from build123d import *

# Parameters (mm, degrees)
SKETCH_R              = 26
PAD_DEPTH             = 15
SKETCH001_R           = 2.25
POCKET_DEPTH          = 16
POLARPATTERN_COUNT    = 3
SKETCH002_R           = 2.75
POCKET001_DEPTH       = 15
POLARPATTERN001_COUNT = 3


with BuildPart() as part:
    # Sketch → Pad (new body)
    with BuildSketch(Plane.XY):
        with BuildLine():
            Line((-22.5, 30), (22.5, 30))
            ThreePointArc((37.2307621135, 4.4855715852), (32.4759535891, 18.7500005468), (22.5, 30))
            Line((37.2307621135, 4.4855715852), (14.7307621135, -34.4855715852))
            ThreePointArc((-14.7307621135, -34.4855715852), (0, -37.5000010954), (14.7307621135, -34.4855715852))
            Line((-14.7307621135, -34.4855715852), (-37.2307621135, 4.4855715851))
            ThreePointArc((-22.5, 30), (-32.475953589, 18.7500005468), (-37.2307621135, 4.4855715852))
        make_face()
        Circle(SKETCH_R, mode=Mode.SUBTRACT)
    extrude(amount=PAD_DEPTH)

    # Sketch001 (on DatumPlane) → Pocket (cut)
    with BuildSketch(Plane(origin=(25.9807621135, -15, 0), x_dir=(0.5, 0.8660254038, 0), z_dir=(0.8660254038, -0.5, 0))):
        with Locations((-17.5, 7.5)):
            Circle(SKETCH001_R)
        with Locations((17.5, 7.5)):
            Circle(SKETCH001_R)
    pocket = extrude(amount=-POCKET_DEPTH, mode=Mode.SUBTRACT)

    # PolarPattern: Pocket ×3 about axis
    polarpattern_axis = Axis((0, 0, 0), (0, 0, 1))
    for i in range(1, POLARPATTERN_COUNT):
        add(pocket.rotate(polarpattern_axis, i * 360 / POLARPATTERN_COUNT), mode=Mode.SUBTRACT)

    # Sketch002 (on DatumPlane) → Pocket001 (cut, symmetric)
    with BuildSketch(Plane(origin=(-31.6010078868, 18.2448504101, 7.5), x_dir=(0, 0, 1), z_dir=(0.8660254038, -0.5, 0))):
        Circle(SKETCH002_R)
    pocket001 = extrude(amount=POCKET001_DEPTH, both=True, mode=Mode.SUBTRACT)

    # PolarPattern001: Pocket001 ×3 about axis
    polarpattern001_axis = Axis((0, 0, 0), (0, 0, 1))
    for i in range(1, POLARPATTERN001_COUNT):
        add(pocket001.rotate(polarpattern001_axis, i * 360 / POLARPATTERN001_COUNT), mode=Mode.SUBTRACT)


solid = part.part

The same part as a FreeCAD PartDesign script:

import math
import FreeCAD as App
import Part
import Sketcher
Q = App.Units.Quantity

doc = App.newDocument("Part")
params = doc.addObject("Spreadsheet::Sheet", "Params")
for row, (alias, value) in enumerate([
    ("sketch1_diameter", "52 mm"),
    ("sketch1_width", "45 mm"),
    ("sketch1_length", "45 mm"),
    ("pad1_length", "15 mm"),
    ("sketch2_diameter", "4.5 mm"),
    ("pocket1_length", "16 mm"),
    ("sketch3_diameter", "5.5 mm"),
    ("pocket2_length", "30 mm"),
], start=1):
    params.set(f"A{row}", alias)
    params.set(f"B{row}", "=" + value)
    params.setAlias(f"B{row}", alias)

body = doc.addObject("PartDesign::Body", "Body")

sketch1 = body.newObject("Sketcher::SketchObject", "Sketch")
sketch1.AttachmentSupport = (doc.getObject("XY_Plane"), [""])
sketch1.MapMode = "FlatFace"
sketch1.addGeometry(Part.LineSegment(App.Vector(22.5, 30, 0), App.Vector(-22.5, 30, 0)), False)
sketch1.addGeometry(Part.ArcOfCircle(Part.Circle(App.Vector(-0.000012, 0.000007, 0), App.Vector(0, 0, 1), 37.499987), math.radians(126.869889), math.radians(173.130111)), False)
sketch1.addGeometry(Part.LineSegment(App.Vector(-37.230762, 4.485572, 0), App.Vector(-14.730762, -34.485572, 0)), False)
sketch1.addGeometry(Part.ArcOfCircle(Part.Circle(App.Vector(0, -0.000014, 0), App.Vector(0, 0, 1), 37.499987), math.radians(-113.130111), math.radians(-66.869889)), False)
sketch1.addGeometry(Part.LineSegment(App.Vector(14.730762, -34.485572, 0), App.Vector(37.230762, 4.485572, 0)), False)
sketch1.addGeometry(Part.ArcOfCircle(Part.Circle(App.Vector(0.000012, 0.000007, 0), App.Vector(0, 0, 1), 37.499987), math.radians(6.869889), math.radians(53.130111)), False)
sketch1.addGeometry(Part.Circle(App.Vector(0, 0, 0), App.Vector(0, 0, 1), 26), False)
sketch1.addConstraint(Sketcher.Constraint("Coincident", 0, 2, 1, 1))
sketch1.addConstraint(Sketcher.Constraint("Coincident", 1, 2, 2, 1))
sketch1.addConstraint(Sketcher.Constraint("Coincident", 2, 2, 3, 1))
sketch1.addConstraint(Sketcher.Constraint("Coincident", 3, 2, 4, 1))
sketch1.addConstraint(Sketcher.Constraint("Coincident", 4, 2, 5, 1))
sketch1.addConstraint(Sketcher.Constraint("Coincident", 5, 2, 0, 1))
sketch1.addConstraint(Sketcher.Constraint("Horizontal", 0))
sketch1.addConstraint(Sketcher.Constraint("Coincident", 6, 3, -1, 1))
sketch1.addConstraint(Sketcher.Constraint("Equal", 1, 3))
sketch1.addConstraint(Sketcher.Constraint("Equal", 3, 5))
sketch1.addConstraint(Sketcher.Constraint("Symmetric", 1, 3, 5, 3, -2))
sketch1.addConstraint(Sketcher.Constraint("Symmetric", 2, 2, 3, 2, -2))
sketch1.addConstraint(Sketcher.Constraint("Horizontal", 1, 2, 4, 2))
sketch1.addConstraint(Sketcher.Constraint("Diameter", 6, 52.0))
sketch1.addConstraint(Sketcher.Constraint("DistanceX", 0, 2, 0, 1, 45.0))
sketch1.addConstraint(Sketcher.Constraint("Angle", 2, Q("-60 deg")))
sketch1.addConstraint(Sketcher.Constraint("Distance", 2, 45.0))
sketch1.addConstraint(Sketcher.Constraint("DistanceY", -1, 1, 0, 2, 30.0))
sketch1.addConstraint(Sketcher.Constraint("Radius", 1, 37.499987))
sketch1.addConstraint(Sketcher.Constraint("DistanceY", -1, 1, 1, 2, 4.485572))
sketch1.addConstraint(Sketcher.Constraint("DistanceX", 0, 2, 1, 3, 22.499988))
sketch1.setExpression("Constraints[13]", "Params.sketch1_diameter")
sketch1.setExpression("Constraints[14]", "Params.sketch1_width")
sketch1.setExpression("Constraints[16]", "Params.sketch1_length")
pad1 = body.newObject("PartDesign::Pad", "Pad")
pad1.Profile = sketch1
pad1.setExpression("Length", "Params.pad1_length")

sketch2 = body.newObject("Sketcher::SketchObject", "Sketch001")
sketch2.Placement = App.Placement(App.Vector(25.980762, -15, 0), App.Rotation(App.Vector(0.5, 0.866025404, 0), App.Vector(0, 0, 1), App.Vector(0.866025404, -0.5, 0), "ZXY"))
sketch2.addGeometry(Part.Circle(App.Vector(-17.5, 7.5, 0), App.Vector(0, 0, 1), 2.25), False)
sketch2.addGeometry(Part.Circle(App.Vector(17.5, 7.5, 0), App.Vector(0, 0, 1), 2.25), False)
sketch2.addConstraint(Sketcher.Constraint("Equal", 0, 1))
sketch2.addConstraint(Sketcher.Constraint("Symmetric", 0, 3, 1, 3, -2))
sketch2.addConstraint(Sketcher.Constraint("Diameter", 0, 4.5))
sketch2.addConstraint(Sketcher.Constraint("DistanceX", 0, 3, 1, 3, 35.0))
sketch2.addConstraint(Sketcher.Constraint("DistanceY", -1, 1, 0, 3, 7.5))
sketch2.setExpression("Constraints[2]", "Params.sketch2_diameter")
pocket1 = body.newObject("PartDesign::Pocket", "Pocket")
pocket1.Profile = sketch2
pocket1.setExpression("Length", "Params.pocket1_length")
doc.recompute()

polarpattern = body.newObject("PartDesign::PolarPattern", "PolarPattern")
polarpattern.Originals = [pocket1]
polarpattern.Axis = (doc.getObject("Z_Axis"), [""])
polarpattern.Angle = 360
polarpattern.Occurrences = 3
body.Tip = polarpattern

sketch3 = body.newObject("Sketcher::SketchObject", "Sketch002")
sketch3.Placement = App.Placement(App.Vector(-31.601008, 18.24485, 7.5), App.Rotation(App.Vector(0, 0, 1), App.Vector(-0.5, -0.866025404, 0), App.Vector(0.866025404, -0.5, 0), "ZXY"))
sketch3.addGeometry(Part.Circle(App.Vector(0, 0, 0), App.Vector(0, 0, 1), 2.75), False)
sketch3.addConstraint(Sketcher.Constraint("Coincident", 0, 3, -1, 1))
sketch3.addConstraint(Sketcher.Constraint("Diameter", 0, 5.5))
sketch3.setExpression("Constraints[1]", "Params.sketch3_diameter")
pocket2 = body.newObject("PartDesign::Pocket", "Pocket001")
pocket2.Profile = sketch3
pocket2.setExpression("Length", "Params.pocket2_length")
pocket2.Midplane = True
doc.recompute()

polarpattern2 = body.newObject("PartDesign::PolarPattern", "PolarPattern001")
polarpattern2.Originals = [pocket2]
polarpattern2.Axis = (doc.getObject("Z_Axis"), [""])
polarpattern2.Angle = 360
polarpattern2.Occurrences = 3
body.Tip = polarpattern2

doc.recompute()
